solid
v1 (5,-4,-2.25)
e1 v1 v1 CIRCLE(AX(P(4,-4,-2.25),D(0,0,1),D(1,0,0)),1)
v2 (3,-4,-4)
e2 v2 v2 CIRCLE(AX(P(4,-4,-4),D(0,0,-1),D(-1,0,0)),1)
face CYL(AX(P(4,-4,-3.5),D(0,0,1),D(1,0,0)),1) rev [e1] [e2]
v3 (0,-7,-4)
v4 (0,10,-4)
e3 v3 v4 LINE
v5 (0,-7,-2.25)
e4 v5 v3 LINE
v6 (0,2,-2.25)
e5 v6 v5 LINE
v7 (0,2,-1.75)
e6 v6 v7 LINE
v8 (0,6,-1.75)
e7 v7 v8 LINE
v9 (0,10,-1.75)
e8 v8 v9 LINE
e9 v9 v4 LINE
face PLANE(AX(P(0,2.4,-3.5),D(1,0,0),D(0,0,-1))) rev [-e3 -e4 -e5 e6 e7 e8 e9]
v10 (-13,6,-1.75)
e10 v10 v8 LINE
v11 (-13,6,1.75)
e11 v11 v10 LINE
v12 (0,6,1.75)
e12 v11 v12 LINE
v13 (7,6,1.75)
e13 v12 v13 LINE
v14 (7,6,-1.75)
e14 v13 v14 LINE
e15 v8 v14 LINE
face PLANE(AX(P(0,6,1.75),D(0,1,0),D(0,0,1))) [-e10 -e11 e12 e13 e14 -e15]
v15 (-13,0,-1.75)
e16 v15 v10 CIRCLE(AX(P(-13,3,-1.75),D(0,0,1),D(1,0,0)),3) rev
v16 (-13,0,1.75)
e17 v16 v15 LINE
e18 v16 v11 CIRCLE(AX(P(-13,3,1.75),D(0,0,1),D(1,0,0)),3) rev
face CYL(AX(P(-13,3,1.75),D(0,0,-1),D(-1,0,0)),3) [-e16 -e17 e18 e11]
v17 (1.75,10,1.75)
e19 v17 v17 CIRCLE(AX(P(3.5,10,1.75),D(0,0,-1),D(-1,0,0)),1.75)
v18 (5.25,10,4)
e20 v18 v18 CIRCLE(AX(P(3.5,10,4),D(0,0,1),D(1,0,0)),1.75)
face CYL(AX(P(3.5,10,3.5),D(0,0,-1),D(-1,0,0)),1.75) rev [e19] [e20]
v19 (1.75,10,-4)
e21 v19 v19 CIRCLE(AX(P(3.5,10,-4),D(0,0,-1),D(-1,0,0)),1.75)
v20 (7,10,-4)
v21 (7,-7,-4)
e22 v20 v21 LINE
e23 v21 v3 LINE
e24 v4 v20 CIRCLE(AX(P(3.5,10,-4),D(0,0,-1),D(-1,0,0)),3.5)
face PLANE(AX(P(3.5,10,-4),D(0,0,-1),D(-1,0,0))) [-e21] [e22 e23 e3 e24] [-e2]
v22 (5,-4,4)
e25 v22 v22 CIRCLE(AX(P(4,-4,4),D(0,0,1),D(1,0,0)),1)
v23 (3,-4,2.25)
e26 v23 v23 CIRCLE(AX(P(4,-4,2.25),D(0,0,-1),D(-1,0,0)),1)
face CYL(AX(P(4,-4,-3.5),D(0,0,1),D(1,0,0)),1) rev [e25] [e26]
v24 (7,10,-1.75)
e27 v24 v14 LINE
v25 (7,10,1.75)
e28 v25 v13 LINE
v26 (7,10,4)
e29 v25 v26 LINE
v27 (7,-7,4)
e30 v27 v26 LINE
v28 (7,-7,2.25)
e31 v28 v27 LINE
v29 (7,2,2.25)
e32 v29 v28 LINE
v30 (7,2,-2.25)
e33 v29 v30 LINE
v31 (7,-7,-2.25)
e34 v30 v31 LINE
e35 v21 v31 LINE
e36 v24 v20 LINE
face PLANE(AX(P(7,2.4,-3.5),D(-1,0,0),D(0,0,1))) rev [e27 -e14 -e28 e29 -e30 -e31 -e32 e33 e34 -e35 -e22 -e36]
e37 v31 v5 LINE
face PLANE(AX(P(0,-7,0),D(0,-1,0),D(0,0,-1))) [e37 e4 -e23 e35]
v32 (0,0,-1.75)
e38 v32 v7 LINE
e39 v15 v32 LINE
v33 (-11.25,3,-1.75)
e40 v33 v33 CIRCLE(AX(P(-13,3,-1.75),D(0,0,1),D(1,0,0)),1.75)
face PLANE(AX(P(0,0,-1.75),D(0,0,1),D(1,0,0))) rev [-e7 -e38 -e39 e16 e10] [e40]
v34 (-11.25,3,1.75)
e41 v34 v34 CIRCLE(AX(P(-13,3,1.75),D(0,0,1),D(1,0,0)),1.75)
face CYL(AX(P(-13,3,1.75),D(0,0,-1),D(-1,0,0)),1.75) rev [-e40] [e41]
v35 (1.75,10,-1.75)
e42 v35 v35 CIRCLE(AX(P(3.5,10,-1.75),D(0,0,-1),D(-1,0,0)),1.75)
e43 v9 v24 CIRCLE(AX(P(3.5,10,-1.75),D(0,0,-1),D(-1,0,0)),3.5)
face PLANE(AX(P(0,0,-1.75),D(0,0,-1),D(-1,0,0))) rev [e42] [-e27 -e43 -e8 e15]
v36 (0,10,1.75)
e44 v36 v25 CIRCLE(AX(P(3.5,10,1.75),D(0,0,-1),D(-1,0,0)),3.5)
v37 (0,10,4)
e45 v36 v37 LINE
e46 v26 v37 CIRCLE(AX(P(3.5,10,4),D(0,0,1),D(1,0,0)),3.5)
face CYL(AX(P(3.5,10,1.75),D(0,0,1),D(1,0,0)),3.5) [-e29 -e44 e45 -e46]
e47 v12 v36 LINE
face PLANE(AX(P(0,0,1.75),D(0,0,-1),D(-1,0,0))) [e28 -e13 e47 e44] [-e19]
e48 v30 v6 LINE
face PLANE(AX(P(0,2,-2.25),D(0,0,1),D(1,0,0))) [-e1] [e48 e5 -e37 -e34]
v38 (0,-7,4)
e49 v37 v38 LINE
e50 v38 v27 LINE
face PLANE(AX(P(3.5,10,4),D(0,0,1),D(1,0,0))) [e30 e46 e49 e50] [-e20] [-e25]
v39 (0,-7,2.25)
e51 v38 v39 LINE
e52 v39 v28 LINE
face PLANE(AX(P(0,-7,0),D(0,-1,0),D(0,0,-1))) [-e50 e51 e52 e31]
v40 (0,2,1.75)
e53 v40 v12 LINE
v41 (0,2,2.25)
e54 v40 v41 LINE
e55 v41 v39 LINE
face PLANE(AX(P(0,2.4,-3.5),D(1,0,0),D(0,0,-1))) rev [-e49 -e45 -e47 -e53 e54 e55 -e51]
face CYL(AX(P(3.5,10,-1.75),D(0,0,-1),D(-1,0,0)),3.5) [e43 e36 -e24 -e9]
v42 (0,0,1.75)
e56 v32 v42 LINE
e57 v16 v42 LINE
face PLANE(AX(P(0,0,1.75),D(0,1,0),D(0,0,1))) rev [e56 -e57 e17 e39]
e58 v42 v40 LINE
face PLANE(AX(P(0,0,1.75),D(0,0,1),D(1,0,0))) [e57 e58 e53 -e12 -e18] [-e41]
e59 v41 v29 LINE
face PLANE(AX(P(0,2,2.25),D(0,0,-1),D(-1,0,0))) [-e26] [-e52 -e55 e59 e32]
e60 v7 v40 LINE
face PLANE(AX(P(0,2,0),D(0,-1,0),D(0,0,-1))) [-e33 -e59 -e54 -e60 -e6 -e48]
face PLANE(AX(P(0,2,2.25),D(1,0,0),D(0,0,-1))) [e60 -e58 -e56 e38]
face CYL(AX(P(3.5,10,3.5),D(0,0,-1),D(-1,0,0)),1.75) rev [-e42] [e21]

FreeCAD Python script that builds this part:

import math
import FreeCAD as App
import Part
import Sketcher

doc = App.newDocument("Part")
body = doc.addObject("PartDesign::Body", "Body")

sketch1 = body.newObject("Sketcher::SketchObject", "Sketch")
sketch1.AttachmentSupport = (doc.getObject("XZ_Plane"), [""])
sketch1.MapMode = "FlatFace"
sketch1.addGeometry([
    Part.LineSegment(App.Vector(0, -3.5, 0), App.Vector(0, 3.5, 0)),
    Part.LineSegment(App.Vector(0, 3.5, 0), App.Vector(7, 3.5, 0)),
    Part.LineSegment(App.Vector(7, 3.5, 0), App.Vector(7, -3.5, 0)),
    Part.LineSegment(App.Vector(7, -3.5, 0), App.Vector(0, -3.5, 0)),
], False)
sketch1.addConstraint([
    Sketcher.Constraint("Coincident", 0, 2, 1, 1),
    Sketcher.Constraint("Coincident", 1, 2, 2, 1),
    Sketcher.Constraint("Coincident", 2, 2, 3, 1),
    Sketcher.Constraint("Coincident", 3, 2, 0, 1),
    Sketcher.Constraint("Vertical", 0),
    Sketcher.Constraint("Horizontal", 1),
    Sketcher.Constraint("Vertical", 2),
    Sketcher.Constraint("Horizontal", 3),
    Sketcher.Constraint("Symmetric", 0, 2, 3, 2, -1, 1),
    Sketcher.Constraint("Equal", 3, 0),
    Sketcher.Constraint("DistanceX", 1, 1, 1, 2, 7.0),
])
pad1 = body.newObject("PartDesign::Pad", "Pad")
pad1.Profile = sketch1
pad1.Length = 2.4
pad1.Reversed = True

sketch2 = body.newObject("Sketcher::SketchObject", "Sketch001")
sketch2.AttachmentSupport = (doc.getObject("XY_Plane"), [""])
sketch2.MapMode = "FlatFace"
sketch2.AttachmentOffset = App.Placement(App.Vector(0, 0, -3.5), App.Rotation())
sketch2.addGeometry([
    Part.LineSegment(App.Vector(0, 2.4, 0), App.Vector(0, 10, 0)),
    Part.ArcOfCircle(Part.Circle(App.Vector(3.5, 10, 0), App.Vector(0, 0, 1), 3.5), math.radians(0), math.radians(180)),
    Part.LineSegment(App.Vector(7, 10, 0), App.Vector(7, 2.4, 0)),
    Part.LineSegment(App.Vector(7, 2.4, 0), App.Vector(0, 2.4, 0)),
], False)
sketch2.addConstraint([
    Sketcher.Constraint("Tangent", 0, 2, 1, 2),
    Sketcher.Constraint("Tangent", 1, 1, 2, 1),
    Sketcher.Constraint("Coincident", 2, 2, 3, 1),
    Sketcher.Constraint("Coincident", 3, 2, 0, 1),
    Sketcher.Constraint("Vertical", 0),
    Sketcher.Constraint("Vertical", 2),
    Sketcher.Constraint("Horizontal", 3),
    Sketcher.Constraint("PointOnObject", 0, 2, -2),
    Sketcher.Constraint("Radius", 1, 3.5),
    Sketcher.Constraint("DistanceY", 0, 1, 0, 2, 7.6),
    Sketcher.Constraint("DistanceY", -1, 1, 1, 3, 10.0),
])
pad2 = body.newObject("PartDesign::Pad", "Pad001")
pad2.Profile = sketch2
pad2.Length = 1.75

sketch3 = body.newObject("Sketcher::SketchObject", "Sketch002")
sketch3.AttachmentSupport = (doc.getObject("XY_Plane"), [""])
sketch3.MapMode = "FlatFace"
sketch3.AttachmentOffset = App.Placement(App.Vector(0, 0, 1.75), App.Rotation())
sketch3.addGeometry([
    Part.LineSegment(App.Vector(0, 2.4, 0), App.Vector(0, 10, 0)),
    Part.ArcOfCircle(Part.Circle(App.Vector(3.5, 10, 0), App.Vector(0, 0, 1), 3.5), math.radians(0), math.radians(180)),
    Part.LineSegment(App.Vector(7, 10, 0), App.Vector(7, 2.4, 0)),
    Part.LineSegment(App.Vector(7, 2.4, 0), App.Vector(0, 2.4, 0)),
], False)
sketch3.addConstraint([
    Sketcher.Constraint("Tangent", 0, 2, 1, 2),
    Sketcher.Constraint("Tangent", 1, 1, 2, 1),
    Sketcher.Constraint("Coincident", 2, 2, 3, 1),
    Sketcher.Constraint("Coincident", 3, 2, 0, 1),
    Sketcher.Constraint("Vertical", 0),
    Sketcher.Constraint("Vertical", 2),
    Sketcher.Constraint("Horizontal", 3),
    Sketcher.Constraint("PointOnObject", 0, 2, -2),
    Sketcher.Constraint("Radius", 1, 3.5),
    Sketcher.Constraint("DistanceY", 0, 1, 0, 2, 7.6),
    Sketcher.Constraint("DistanceY", -1, 1, 1, 3, 10.0),
])
pad3 = body.newObject("PartDesign::Pad", "Pad002")
pad3.Profile = sketch3
pad3.Length = 1.75

sketch4 = body.newObject("Sketcher::SketchObject", "Sketch003")
sketch4.AttachmentSupport = (doc.getObject("XY_Plane"), [""])
sketch4.MapMode = "FlatFace"
sketch4.AttachmentOffset = App.Placement(App.Vector(0, 0, -3.5), App.Rotation())
sketch4.addGeometry(Part.Circle(App.Vector(3.5, 10, 0), App.Vector(0, 0, 1), 1.75), False)
sketch4.addConstraint([
    Sketcher.Constraint("Diameter", 0, 3.5),
    Sketcher.Constraint("DistanceY", -1, 1, 0, 3, 10.0),
    Sketcher.Constraint("DistanceX", -1, 1, 0, 3, 3.5),
])
pocket1 = body.newObject("PartDesign::Pocket", "Pocket")
pocket1.Profile = sketch4
pocket1.Type = "ThroughAll"
pocket1.Reversed = True

sketch5 = body.newObject("Sketcher::SketchObject", "Sketch004")
sketch5.AttachmentSupport = (doc.getObject("XZ_Plane"), [""])
sketch5.MapMode = "FlatFace"
sketch5.addGeometry([
    Part.LineSegment(App.Vector(0, 3.5, 0), App.Vector(0, -3.5, 0)),
    Part.LineSegment(App.Vector(0, -3.5, 0), App.Vector(7, -3.5, 0)),
    Part.LineSegment(App.Vector(7, -3.5, 0), App.Vector(7, 3.5, 0)),
    Part.LineSegment(App.Vector(7, 3.5, 0), App.Vector(0, 3.5, 0)),
], False)
sketch5.addConstraint([
    Sketcher.Constraint("Coincident", 0, 2, 1, 1),
    Sketcher.Constraint("Coincident", 1, 2, 2, 1),
    Sketcher.Constraint("Coincident", 2, 2, 3, 1),
    Sketcher.Constraint("Coincident", 3, 2, 0, 1),
    Sketcher.Constraint("Vertical", 0),
    Sketcher.Constraint("Horizontal", 1),
    Sketcher.Constraint("Vertical", 2),
    Sketcher.Constraint("Horizontal", 3),
    Sketcher.Constraint("Symmetric", 0, 2, 3, 2, -1, 1),
    Sketcher.Constraint("Equal", 3, 0),
    Sketcher.Constraint("DistanceX", 1, 1, 1, 2, 7.0),
])
pad4 = body.newObject("PartDesign::Pad", "Pad003")
pad4.Profile = sketch5
pad4.Length = 7

sketch6 = body.newObject("Sketcher::SketchObject", "Sketch005")
sketch6.AttachmentSupport = (doc.getObject("XY_Plane"), [""])
sketch6.MapMode = "FlatFace"
sketch6.addGeometry([
    Part.ArcOfCircle(Part.Circle(App.Vector(-13, 3, 0), App.Vector(0, 0, 1), 3), math.radians(90), math.radians(270)),
    Part.LineSegment(App.Vector(-13, 0, 0), App.Vector(7, 0, 0)),
    Part.LineSegment(App.Vector(7, 0, 0), App.Vector(7, 6, 0)),
    Part.LineSegment(App.Vector(7, 6, 0), App.Vector(-13, 6, 0)),
    Part.Circle(App.Vector(-13, 3, 0), App.Vector(0, 0, 1), 1.75),
], False)
sketch6.addConstraint([
    Sketcher.Constraint("Tangent", 0, 2, 1, 1),
    Sketcher.Constraint("Coincident", 1, 2, 2, 1),
    Sketcher.Constraint("Coincident", 2, 2, 3, 1),
    Sketcher.Constraint("Tangent", 3, 2, 0, 1),
    Sketcher.Constraint("Horizontal", 1),
    Sketcher.Constraint("Vertical", 2),
    Sketcher.Constraint("Horizontal", 3),
    Sketcher.Constraint("Coincident", 4, 3, 0, 3),
    Sketcher.Constraint("PointOnObject", 0, 2, -1),
    Sketcher.Constraint("Radius", 0, 3.0),
    Sketcher.Constraint("Diameter", 4, 3.5),
    Sketcher.Constraint("DistanceX", 1, 1, 1, 2, 20.0),
    Sketcher.Constraint("DistanceX", 0, 3, -1, 1, 13.0),
])
pad5 = body.newObject("PartDesign::Pad", "Pad004")
pad5.Profile = sketch6
pad5.Length = 3.5
pad5.Midplane = True

sketch7 = body.newObject("Sketcher::SketchObject", "Sketch006")
sketch7.AttachmentSupport = (doc.getObject("XY_Plane"), [""])
sketch7.MapMode = "FlatFace"
sketch7.AttachmentOffset = App.Placement(App.Vector(0, 0, 3.5), App.Rotation())
sketch7.addGeometry(Part.Circle(App.Vector(4, -4, 0), App.Vector(0, 0, 1), 1), False)
sketch7.addConstraint([
    Sketcher.Constraint("Diameter", 0, 2.0),
    Sketcher.Constraint("DistanceX", -1, 1, 0, 3, 4.0),
    Sketcher.Constraint("DistanceY", 0, 3, -1, 1, 4.0),
])
pocket2 = body.newObject("PartDesign::Pocket", "Pocket001")
pocket2.Profile = sketch7
pocket2.Type = "ThroughAll"

sketch8 = body.newObject("Sketcher::SketchObject", "Sketch007")
sketch8.AttachmentSupport = (doc.getObject("XZ_Plane"), [""])
sketch8.MapMode = "FlatFace"
sketch8.AttachmentOffset = App.Placement(App.Vector(0, 0, 7), App.Rotation())
sketch8.addGeometry([
    Part.LineSegment(App.Vector(0, -2.25, 0), App.Vector(0, 2.25, 0)),
    Part.LineSegment(App.Vector(0, 2.25, 0), App.Vector(7, 2.25, 0)),
    Part.LineSegment(App.Vector(7, 2.25, 0), App.Vector(7, -2.25, 0)),
    Part.LineSegment(App.Vector(7, -2.25, 0), App.Vector(0, -2.25, 0)),
], False)
sketch8.addConstraint([
    Sketcher.Constraint("Coincident", 0, 2, 1, 1),
    Sketcher.Constraint("Coincident", 1, 2, 2, 1),
    Sketcher.Constraint("Coincident", 2, 2, 3, 1),
    Sketcher.Constraint("Coincident", 3, 2, 0, 1),
    Sketcher.Constraint("Vertical", 0),
    Sketcher.Constraint("Horizontal", 1),
    Sketcher.Constraint("Vertical", 2),
    Sketcher.Constraint("Horizontal", 3),
    Sketcher.Constraint("Symmetric", 0, 2, 3, 2, -1, 1),
    Sketcher.Constraint("DistanceX", 1, 1, 1, 2, 7.0),
    Sketcher.Constraint("DistanceY", 0, 1, 0, 2, 4.5),
])
pocket3 = body.newObject("PartDesign::Pocket", "Pocket002")
pocket3.Profile = sketch8
pocket3.Length = 9

sketch9 = body.newObject("Sketcher::SketchObject", "Sketch008")
sketch9.AttachmentSupport = (doc.getObject("XY_Plane"), [""])
sketch9.MapMode = "FlatFace"
sketch9.AttachmentOffset = App.Placement(App.Vector(0, 0, 3.5), App.Rotation())
sketch9.addGeometry([
    Part.LineSegment(App.Vector(0, 10, 0), App.Vector(0, -7, 0)),
    Part.LineSegment(App.Vector(0, -7, 0), App.Vector(7, -7, 0)),
    Part.LineSegment(App.Vector(7, -7, 0), App.Vector(7, 10, 0)),
    Part.ArcOfCircle(Part.Circle(App.Vector(3.5, 10, 0), App.Vector(0, 0, 1), 3.5), math.radians(0), math.radians(180)),
    Part.Circle(App.Vector(4, -4, 0), App.Vector(0, 0, 1), 1),
    Part.Circle(App.Vector(3.5, 10, 0), App.Vector(0, 0, 1), 1.75),
], False)
sketch9.addConstraint([
    Sketcher.Constraint("Coincident", 0, 2, 1, 1),
    Sketcher.Constraint("Coincident", 1, 2, 2, 1),
    Sketcher.Constraint("Tangent", 2, 2, 3, 1),
    Sketcher.Constraint("Tangent", 3, 2, 0, 1),
    Sketcher.Constraint("Vertical", 0),
    Sketcher.Constraint("Horizontal", 1),
    Sketcher.Constraint("Vertical", 2),
    Sketcher.Constraint("Coincident", 5, 3, 3, 3),
    Sketcher.Constraint("PointOnObject", 0, 2, -2),
    Sketcher.Constraint("Diameter", 4, 2.0),
    Sketcher.Constraint("Diameter", 5, 3.5),
    Sketcher.Constraint("Radius", 3, 3.5),
    Sketcher.Constraint("DistanceY", 0, 2, 0, 1, 17.0),
    Sketcher.Constraint("DistanceY", -1, 1, 3, 3, 10.0),
    Sketcher.Constraint("DistanceX", -1, 1, 4, 3, 4.0),
    Sketcher.Constraint("DistanceY", 4, 3, -1, 1, 4.0),
])
pad6 = body.newObject("PartDesign::Pad", "Pad005")
pad6.Profile = sketch9
pad6.Length = 0.5

sketch10 = body.newObject("Sketcher::SketchObject", "Sketch009")
sketch10.AttachmentSupport = (doc.getObject("XY_Plane"), [""])
sketch10.MapMode = "FlatFace"
sketch10.AttachmentOffset = App.Placement(App.Vector(0, 0, -4), App.Rotation())
sketch10.addGeometry([
    Part.LineSegment(App.Vector(7, 10, 0), App.Vector(7, -7, 0)),
    Part.LineSegment(App.Vector(7, -7, 0), App.Vector(0, -7, 0)),
    Part.LineSegment(App.Vector(0, -7, 0), App.Vector(0, 10, 0)),
    Part.ArcOfCircle(Part.Circle(App.Vector(3.5, 10, 0), App.Vector(0, 0, 1), 3.5), math.radians(0), math.radians(180)),
    Part.Circle(App.Vector(4, -4, 0), App.Vector(0, 0, 1), 1),
    Part.Circle(App.Vector(3.5, 10, 0), App.Vector(0, 0, 1), 1.75),
], False)
sketch10.addConstraint([
    Sketcher.Constraint("Coincident", 0, 2, 1, 1),
    Sketcher.Constraint("Coincident", 1, 2, 2, 1),
    Sketcher.Constraint("Tangent", 2, 2, 3, 2),
    Sketcher.Constraint("Tangent", 3, 1, 0, 1),
    Sketcher.Constraint("Vertical", 0),
    Sketcher.Constraint("Horizontal", 1),
    Sketcher.Constraint("Vertical", 2),
    Sketcher.Constraint("Coincident", 5, 3, 3, 3),
    Sketcher.Constraint("PointOnObject", 1, 2, -2),
    Sketcher.Constraint("Diameter", 4, 2.0),
    Sketcher.Constraint("Diameter", 5, 3.5),
    Sketcher.Constraint("Radius", 3, 3.5),
    Sketcher.Constraint("DistanceY", 0, 2, 0, 1, 17.0),
    Sketcher.Constraint("DistanceY", -1, 1, 3, 3, 10.0),
    Sketcher.Constraint("DistanceX", -1, 1, 4, 3, 4.0),
    Sketcher.Constraint("DistanceY", 4, 3, -1, 1, 4.0),
])
pad7 = body.newObject("PartDesign::Pad", "Pad006")
pad7.Profile = sketch10
pad7.Length = 0.5

doc.recompute()
